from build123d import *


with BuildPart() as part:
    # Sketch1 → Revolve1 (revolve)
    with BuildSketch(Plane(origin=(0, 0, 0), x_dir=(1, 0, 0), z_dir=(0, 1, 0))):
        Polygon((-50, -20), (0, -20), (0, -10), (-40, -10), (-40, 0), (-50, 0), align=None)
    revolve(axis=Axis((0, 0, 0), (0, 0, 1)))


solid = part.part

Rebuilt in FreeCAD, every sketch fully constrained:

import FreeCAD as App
import Part
import Sketcher

doc = App.newDocument("Part")
body = doc.addObject("PartDesign::Body", "Body")

# Sketch on XZ plane
sketch1 = body.newObject("Sketcher::SketchObject", "Sketch")
sketch1.AttachmentSupport = (doc.getObject("XZ_Plane"), [""])
sketch1.MapMode = "FlatFace"
sketch1.addGeometry(Part.LineSegment(App.Vector(-50, 20, 0), App.Vector(0, 20, 0)), False)
sketch1.addGeometry(Part.LineSegment(App.Vector(0, 20, 0), App.Vector(0, 10, 0)), False)
sketch1.addGeometry(Part.LineSegment(App.Vector(0, 10, 0), App.Vector(-40, 10, 0)), False)
sketch1.addGeometry(Part.LineSegment(App.Vector(-40, 10, 0), App.Vector(-40, 0, 0)), False)
sketch1.addGeometry(Part.LineSegment(App.Vector(-40, 0, 0), App.Vector(-50, 0, 0)), False)
sketch1.addGeometry(Part.LineSegment(App.Vector(-50, 0, 0), App.Vector(-50, 20, 0)), False)
sketch1.addConstraint(Sketcher.Constraint("Coincident", 0, 2, 1, 1))
sketch1.addConstraint(Sketcher.Constraint("Coincident", 1, 2, 2, 1))
sketch1.addConstraint(Sketcher.Constraint("Coincident", 2, 2, 3, 1))
sketch1.addConstraint(Sketcher.Constraint("Coincident", 3, 2, 4, 1))
sketch1.addConstraint(Sketcher.Constraint("Coincident", 4, 2, 5, 1))
sketch1.addConstraint(Sketcher.Constraint("Coincident", 5, 2, 0, 1))
sketch1.addConstraint(Sketcher.Constraint("Horizontal", 0))
sketch1.addConstraint(Sketcher.Constraint("Vertical", 1))
sketch1.addConstraint(Sketcher.Constraint("Horizontal", 2))
sketch1.addConstraint(Sketcher.Constraint("Vertical", 3))
sketch1.addConstraint(Sketcher.Constraint("Horizontal", 4))
sketch1.addConstraint(Sketcher.Constraint("Vertical", 5))
sketch1.addConstraint(Sketcher.Constraint("PointOnObject", 0, 2, -2))
sketch1.addConstraint(Sketcher.Constraint("PointOnObject", 3, 2, -1))
sketch1.addConstraint(Sketcher.Constraint("Equal", 4, 1))
sketch1.addConstraint(Sketcher.Constraint("Equal", 1, 3))
sketch1.addConstraint(Sketcher.Constraint("DistanceX", 0, 1, 0, 2, 50.0))
sketch1.addConstraint(Sketcher.Constraint("DistanceX", 2, 2, 2, 1, 40.0))
revolution = body.newObject("PartDesign::Revolution", "Revolution")
revolution.Profile = sketch1
revolution.ReferenceAxis = (sketch1, ["V_Axis"])
revolution.Angle = 360

doc.recompute()
